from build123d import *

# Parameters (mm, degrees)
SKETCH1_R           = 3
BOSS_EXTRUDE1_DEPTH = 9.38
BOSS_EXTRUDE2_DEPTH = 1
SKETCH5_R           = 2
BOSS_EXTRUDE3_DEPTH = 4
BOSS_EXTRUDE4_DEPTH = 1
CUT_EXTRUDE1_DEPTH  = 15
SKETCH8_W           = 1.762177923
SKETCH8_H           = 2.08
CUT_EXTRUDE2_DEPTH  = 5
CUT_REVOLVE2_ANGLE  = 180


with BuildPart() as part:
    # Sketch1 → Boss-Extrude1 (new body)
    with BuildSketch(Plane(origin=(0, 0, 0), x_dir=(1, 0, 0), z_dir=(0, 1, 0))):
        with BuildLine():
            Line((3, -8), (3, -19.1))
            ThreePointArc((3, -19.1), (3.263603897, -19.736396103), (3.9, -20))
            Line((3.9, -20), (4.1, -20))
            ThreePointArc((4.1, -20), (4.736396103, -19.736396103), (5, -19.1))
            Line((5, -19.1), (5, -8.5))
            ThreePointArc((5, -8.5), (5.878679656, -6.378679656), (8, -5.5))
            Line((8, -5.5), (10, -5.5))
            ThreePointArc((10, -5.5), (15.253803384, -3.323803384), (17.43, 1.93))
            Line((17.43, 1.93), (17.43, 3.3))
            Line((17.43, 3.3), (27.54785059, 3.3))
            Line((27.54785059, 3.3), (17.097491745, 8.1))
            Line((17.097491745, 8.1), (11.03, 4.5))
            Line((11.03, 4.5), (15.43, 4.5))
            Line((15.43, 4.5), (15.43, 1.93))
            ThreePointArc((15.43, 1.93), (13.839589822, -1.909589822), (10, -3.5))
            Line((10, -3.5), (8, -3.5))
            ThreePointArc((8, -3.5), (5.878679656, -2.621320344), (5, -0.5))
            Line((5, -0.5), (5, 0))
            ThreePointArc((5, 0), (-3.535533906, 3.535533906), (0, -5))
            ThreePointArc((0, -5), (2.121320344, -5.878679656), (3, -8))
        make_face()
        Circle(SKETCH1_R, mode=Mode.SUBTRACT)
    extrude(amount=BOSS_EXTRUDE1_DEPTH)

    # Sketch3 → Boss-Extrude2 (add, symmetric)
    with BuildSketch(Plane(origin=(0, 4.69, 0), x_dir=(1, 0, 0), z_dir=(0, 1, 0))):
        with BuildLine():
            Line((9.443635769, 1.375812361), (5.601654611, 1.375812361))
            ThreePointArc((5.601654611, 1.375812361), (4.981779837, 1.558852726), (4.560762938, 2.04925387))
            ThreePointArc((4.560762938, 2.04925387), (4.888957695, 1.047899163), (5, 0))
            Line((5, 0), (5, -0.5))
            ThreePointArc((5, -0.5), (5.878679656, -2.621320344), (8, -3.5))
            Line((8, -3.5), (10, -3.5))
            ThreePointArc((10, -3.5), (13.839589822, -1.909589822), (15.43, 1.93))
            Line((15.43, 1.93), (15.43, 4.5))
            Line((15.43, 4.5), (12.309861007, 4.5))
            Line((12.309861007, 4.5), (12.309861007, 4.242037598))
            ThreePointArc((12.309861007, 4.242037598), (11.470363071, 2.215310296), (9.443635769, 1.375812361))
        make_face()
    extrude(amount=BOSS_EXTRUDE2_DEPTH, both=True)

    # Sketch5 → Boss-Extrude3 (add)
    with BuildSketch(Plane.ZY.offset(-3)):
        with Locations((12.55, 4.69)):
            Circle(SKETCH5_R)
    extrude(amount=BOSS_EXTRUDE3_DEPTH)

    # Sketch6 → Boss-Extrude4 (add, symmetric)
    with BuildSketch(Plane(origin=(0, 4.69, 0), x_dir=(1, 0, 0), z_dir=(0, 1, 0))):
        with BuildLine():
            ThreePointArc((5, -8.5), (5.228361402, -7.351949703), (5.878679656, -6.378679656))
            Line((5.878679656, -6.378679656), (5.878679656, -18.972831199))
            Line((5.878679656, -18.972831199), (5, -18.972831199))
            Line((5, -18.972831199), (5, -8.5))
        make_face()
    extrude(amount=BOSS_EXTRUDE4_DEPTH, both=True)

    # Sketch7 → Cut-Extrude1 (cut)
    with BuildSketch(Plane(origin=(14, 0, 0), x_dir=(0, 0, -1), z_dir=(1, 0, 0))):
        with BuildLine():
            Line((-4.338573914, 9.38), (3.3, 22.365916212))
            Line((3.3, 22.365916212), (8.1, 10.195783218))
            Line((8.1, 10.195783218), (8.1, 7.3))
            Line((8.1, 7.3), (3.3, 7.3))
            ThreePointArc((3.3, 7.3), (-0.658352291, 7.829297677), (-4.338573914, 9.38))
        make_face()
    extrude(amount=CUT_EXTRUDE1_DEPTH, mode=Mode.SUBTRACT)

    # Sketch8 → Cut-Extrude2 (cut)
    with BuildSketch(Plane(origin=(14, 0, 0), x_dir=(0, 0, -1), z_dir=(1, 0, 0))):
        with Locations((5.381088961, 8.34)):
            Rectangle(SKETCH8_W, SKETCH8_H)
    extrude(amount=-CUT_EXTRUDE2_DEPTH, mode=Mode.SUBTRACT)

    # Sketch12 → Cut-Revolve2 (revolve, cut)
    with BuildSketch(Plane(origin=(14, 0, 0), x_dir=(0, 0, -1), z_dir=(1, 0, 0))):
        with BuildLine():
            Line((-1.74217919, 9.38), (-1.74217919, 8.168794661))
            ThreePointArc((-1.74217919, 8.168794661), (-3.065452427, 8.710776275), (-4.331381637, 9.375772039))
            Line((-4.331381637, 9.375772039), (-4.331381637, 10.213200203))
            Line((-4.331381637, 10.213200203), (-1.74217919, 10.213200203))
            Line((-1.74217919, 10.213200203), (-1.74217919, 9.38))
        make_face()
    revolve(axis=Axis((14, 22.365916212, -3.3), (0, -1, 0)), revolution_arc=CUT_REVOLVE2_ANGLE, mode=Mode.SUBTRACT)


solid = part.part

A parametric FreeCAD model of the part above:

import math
import FreeCAD as App
import Part
import Sketcher
Q = App.Units.Quantity

doc = App.newDocument("Part")
body = doc.addObject("PartDesign::Body", "Body")

# Sketch on XZ plane
sketch1 = body.newObject("Sketcher::SketchObject", "Sketch")
sketch1.AttachmentSupport = (doc.getObject("XZ_Plane"), [""])
sketch1.MapMode = "FlatFace"
sketch1.addGeometry([
    Part.LineSegment(App.Vector(3, 8, 0), App.Vector(3, 19.1, 0)),  # 0
    Part.ArcOfCircle(Part.Circle(App.Vector(3.9, 19.1, 0), App.Vector(0, 0, 1), 0.9), math.radians(90), math.radians(180)),  # 1
    Part.LineSegment(App.Vector(3.9, 20, 0), App.Vector(4.1, 20, 0)),  # 2
    Part.ArcOfCircle(Part.Circle(App.Vector(4.1, 19.1, 0), App.Vector(0, 0, 1), 0.9), math.radians(0), math.radians(90)),  # 3
    Part.LineSegment(App.Vector(5, 19.1, 0), App.Vector(5, 8.5, 0)),  # 4
    Part.ArcOfCircle(Part.Circle(App.Vector(8, 8.5, 0), App.Vector(0, 0, 1), 3), math.radians(180), math.radians(270)),  # 5
    Part.LineSegment(App.Vector(8, 5.5, 0), App.Vector(10, 5.5, 0)),  # 6
    Part.ArcOfCircle(Part.Circle(App.Vector(10, -1.93, 0), App.Vector(0, 0, 1), 7.43), math.radians(0), math.radians(90)),  # 7
    Part.LineSegment(App.Vector(17.43, -1.93, 0), App.Vector(17.43, -3.3, 0)),  # 8
    Part.LineSegment(App.Vector(17.43, -3.3, 0), App.Vector(27.55, -3.3, 0)),  # 9
    Part.LineSegment(App.Vector(27.55, -3.3, 0), App.Vector(17.1, -8.1, 0)),  # 10
    Part.LineSegment(App.Vector(17.1, -8.1, 0), App.Vector(11.03, -4.5, 0)),  # 11
    Part.LineSegment(App.Vector(11.03, -4.5, 0), App.Vector(15.43, -4.5, 0)),  # 12
    Part.LineSegment(App.Vector(15.43, -4.5, 0), App.Vector(15.43, -1.93, 0)),  # 13
    Part.ArcOfCircle(Part.Circle(App.Vector(10, -1.93, 0), App.Vector(0, 0, 1), 5.43), math.radians(0), math.radians(90)),  # 14
    Part.LineSegment(App.Vector(10, 3.5, 0), App.Vector(8, 3.5, 0)),  # 15
    Part.ArcOfCircle(Part.Circle(App.Vector(8, 0.5, 0), App.Vector(0, 0, 1), 3), math.radians(90), math.radians(180)),  # 16
    Part.LineSegment(App.Vector(5, 0.5, 0), App.Vector(5, 0, 0)),  # 17
    Part.ArcOfCircle(Part.Circle(App.Vector(0, 0, 0), App.Vector(0, 0, 1), 5), math.radians(90), math.radians(360)),  # 18
    Part.ArcOfCircle(Part.Circle(App.Vector(0, 8, 0), App.Vector(0, 0, 1), 3), math.radians(-90), math.radians(0)),  # 19
    Part.Circle(App.Vector(0, 0, 0), App.Vector(0, 0, 1), 3),  # 20
], False)
sketch1.addConstraint([
    Sketcher.Constraint("Tangent", 0, 2, 1, 2),
    Sketcher.Constraint("Tangent", 1, 1, 2, 1),
    Sketcher.Constraint("Tangent", 2, 2, 3, 2),
    Sketcher.Constraint("Tangent", 3, 1, 4, 1),
    Sketcher.Constraint("Tangent", 4, 2, 5, 1),
    Sketcher.Constraint("Tangent", 5, 2, 6, 1),
    Sketcher.Constraint("Tangent", 6, 2, 7, 2),
    Sketcher.Constraint("Tangent", 7, 1, 8, 1),
    Sketcher.Constraint("Coincident", 8, 2, 9, 1),
    Sketcher.Constraint("Coincident", 9, 2, 10, 1),
    Sketcher.Constraint("Coincident", 10, 2, 11, 1),
    Sketcher.Constraint("Coincident", 11, 2, 12, 1),
    Sketcher.Constraint("Coincident", 12, 2, 13, 1),
    Sketcher.Constraint("Tangent", 13, 2, 14, 1),
    Sketcher.Constraint("Tangent", 14, 2, 15, 1),
    Sketcher.Constraint("Tangent", 15, 2, 16, 1),
    Sketcher.Constraint("Tangent", 16, 2, 17, 1),
    Sketcher.Constraint("Tangent", 17, 2, 18, 2),
    Sketcher.Constraint("Tangent", 18, 1, 19, 1),
    Sketcher.Constraint("Tangent", 19, 2, 0, 1),
    Sketcher.Constraint("Vertical", 0),
    Sketcher.Constraint("Horizontal", 2),
    Sketcher.Constraint("Vertical", 4),
    Sketcher.Constraint("Horizontal", 6),
    Sketcher.Constraint("Vertical", 8),
    Sketcher.Constraint("Horizontal", 9),
    Sketcher.Constraint("Horizontal", 12),
    Sketcher.Constraint("Vertical", 13),
    Sketcher.Constraint("Horizontal", 15),
    Sketcher.Constraint("Vertical", 17),
    Sketcher.Constraint("Coincident", 18, 3, -1, 1),
    Sketcher.Constraint("Coincident", 20, 3, -1, 1),
    Sketcher.Constraint("Coincident", 14, 3, 7, 3),
    Sketcher.Constraint("Equal", 1, 3),
    Sketcher.Constraint("Equal", 5, 16),
    Sketcher.Constraint("Equal", 16, 19),
    Sketcher.Constraint("Equal", 19, 20),
    Sketcher.Constraint("PointOnObject", 19, 3, -2),
    Sketcher.Constraint("Vertical", 5, 3, 16, 3),
    Sketcher.Constraint("Diameter", 20, Q("6 mm")),
    Sketcher.Constraint("Radius", 18, Q("5 mm")),
    Sketcher.Constraint("Radius", 1, Q("0.9 mm")),
    Sketcher.Constraint("DistanceX", 6, 1, 6, 2, Q("2 mm")),
    Sketcher.Constraint("Radius", 7, Q("7.43 mm")),
    Sketcher.Constraint("Radius", 14, Q("5.43 mm")),
    Sketcher.Constraint("DistanceX", 12, 1, 12, 2, Q("4.4 mm")),
    Sketcher.Constraint("DistanceY", 0, 1, 0, 2, Q("11.1 mm")),
    Sketcher.Constraint("DistanceY", 4, 2, 4, 1, Q("10.6 mm")),
    Sketcher.Constraint("DistanceY", 11, 2, 16, 3, Q("5 mm")),
    Sketcher.Constraint("Distance", 10, Q("11.5 mm")),
    Sketcher.Constraint("DistanceY", 8, 2, 8, 1, Q("1.37 mm")),
    Sketcher.Constraint("DistanceY", 10, 2, -1, 1, Q("8.1 mm")),
    Sketcher.Constraint("Distance", 11, Q("7.055101 mm")),
])
pad1 = body.newObject("PartDesign::Pad", "Pad")
pad1.Profile = sketch1
pad1.Length = 9.38
pad1.Reversed = True

# Sketch on XZ plane
sketch2 = body.newObject("Sketcher::SketchObject", "Sketch001")
sketch2.AttachmentSupport = (doc.getObject("XZ_Plane"), [""])
sketch2.MapMode = "FlatFace"
sketch2.AttachmentOffset = App.Placement(App.Vector(0, 0, -4.69), App.Rotation())
sketch2.addGeometry([
    Part.LineSegment(App.Vector(9.44, -1.38, 0), App.Vector(5.6, -1.38, 0)),  # 0
    Part.ArcOfCircle(Part.Circle(App.Vector(5.6, -2.52, 0), App.Vector(0, 0, 1), 1.14), math.radians(90), math.radians(156)),  # 1
    Part.ArcOfCircle(Part.Circle(App.Vector(0, 0, 0), App.Vector(0, 0, 1), 5), math.radians(-24), math.radians(0)),  # 2
    Part.LineSegment(App.Vector(5, 0, 0), App.Vector(5, 0.5, 0)),  # 3
    Part.ArcOfCircle(Part.Circle(App.Vector(8, 0.5, 0), App.Vector(0, 0, 1), 3), math.radians(90), math.radians(180)),  # 4
    Part.LineSegment(App.Vector(8, 3.5, 0), App.Vector(10, 3.5, 0)),  # 5
    Part.ArcOfCircle(Part.Circle(App.Vector(10, -1.93, 0), App.Vector(0, 0, 1), 5.43), math.radians(0), math.radians(90)),  # 6
    Part.LineSegment(App.Vector(15.43, -1.93, 0), App.Vector(15.43, -4.5, 0)),  # 7
    Part.LineSegment(App.Vector(15.43, -4.5, 0), App.Vector(12.31, -4.5, 0)),  # 8
    Part.LineSegment(App.Vector(12.31, -4.5, 0), App.Vector(12.31, -4.24, 0)),  # 9
    Part.ArcOfCircle(Part.Circle(App.Vector(9.44, -4.24, 0), App.Vector(0, 0, 1), 2.87), math.radians(0), math.radians(90)),  # 10
], False)
sketch2.addConstraint([
    Sketcher.Constraint("Tangent", 0, 2, 1, 1),
    Sketcher.Constraint("Tangent", 1, 2, 2, 1),
    Sketcher.Constraint("Tangent", 2, 2, 3, 1),
    Sketcher.Constraint("Tangent", 3, 2, 4, 2),
    Sketcher.Constraint("Tangent", 4, 1, 5, 1),
    Sketcher.Constraint("Tangent", 5, 2, 6, 2),
    Sketcher.Constraint("Tangent", 6, 1, 7, 1),
    Sketcher.Constraint("Coincident", 7, 2, 8, 1),
    Sketcher.Constraint("Coincident", 8, 2, 9, 1),
    Sketcher.Constraint("Tangent", 9, 2, 10, 1),
    Sketcher.Constraint("Tangent", 10, 2, 0, 1),
    Sketcher.Constraint("Horizontal", 0),
    Sketcher.Constraint("Vertical", 3),
    Sketcher.Constraint("Horizontal", 5),
    Sketcher.Constraint("Vertical", 7),
    Sketcher.Constraint("Horizontal", 8),
    Sketcher.Constraint("Vertical", 9),
    Sketcher.Constraint("Coincident", 2, 3, -1, 1),
    Sketcher.Constraint("Radius", 2, Q("5 mm")),
    Sketcher.Constraint("Radius", 4, Q("3 mm")),
    Sketcher.Constraint("DistanceX", 5, 1, 5, 2, Q("2 mm")),
    Sketcher.Constraint("Radius", 6, Q("5.43 mm")),
    Sketcher.Constraint("DistanceY", 3, 1, 3, 2, Q("0.5 mm")),
    Sketcher.Constraint("DistanceY", 7, 2, 4, 3, Q("5 mm")),
    Sketcher.Constraint("Radius", 1, Q("1.141138 mm")),
    Sketcher.Constraint("Radius", 10, Q("2.866225 mm")),
    Sketcher.Constraint("DistanceX", 0, 2, 0, 1, Q("3.841981 mm")),
    Sketcher.Constraint("DistanceX", 8, 2, 8, 1, Q("3.120139 mm")),
])
pad2 = body.newObject("PartDesign::Pad", "Pad001")
pad2.Profile = sketch2
pad2.Length = 2
pad2.Midplane = True

# Sketch on YZ plane
sketch3 = body.newObject("Sketcher::SketchObject", "Sketch002")
sketch3.AttachmentSupport = (doc.getObject("YZ_Plane"), [""])
sketch3.MapMode = "FlatFace"
sketch3.AttachmentOffset = App.Placement(App.Vector(0, 0, 3), App.Rotation())
sketch3.addGeometry(Part.Circle(App.Vector(4.7, 12.6, 0), App.Vector(0, 0, 1), 2), False)
sketch3.addConstraint([
    Sketcher.Constraint("Diameter", 0, Q("4 mm")),
    Sketcher.Constraint("DistanceX", -1, 1, 0, 3, Q("4.69 mm")),
    Sketcher.Constraint("DistanceY", -1, 1, 0, 3, Q("12.55 mm")),
])
pad3 = body.newObject("PartDesign::Pad", "Pad002")
pad3.Profile = sketch3
pad3.Length = 4
pad3.Reversed = True

# Sketch on XZ plane
sketch4 = body.newObject("Sketcher::SketchObject", "Sketch003")
sketch4.AttachmentSupport = (doc.getObject("XZ_Plane"), [""])
sketch4.MapMode = "FlatFace"
sketch4.AttachmentOffset = App.Placement(App.Vector(0, 0, -4.69), App.Rotation())
sketch4.addGeometry([
    Part.ArcOfCircle(Part.Circle(App.Vector(8, 8.5, 0), App.Vector(0, 0, 1), 3), math.radians(180), math.radians(225)),
    Part.LineSegment(App.Vector(5, 8.5, 0), App.Vector(5, 19, 0)),
    Part.LineSegment(App.Vector(5, 19, 0), App.Vector(5.9, 19, 0)),
    Part.LineSegment(App.Vector(5.9, 19, 0), App.Vector(5.9, 6.4, 0)),
], False)
sketch4.addConstraint([
    Sketcher.Constraint("Tangent", 0, 1, 1, 1),
    Sketcher.Constraint("Coincident", 1, 2, 2, 1),
    Sketcher.Constraint("Coincident", 2, 2, 3, 1),
    Sketcher.Constraint("Coincident", 3, 2, 0, 2),
    Sketcher.Constraint("Vertical", 1),
    Sketcher.Constraint("Horizontal", 2),
    Sketcher.Constraint("Vertical", 3),
    Sketcher.Constraint("Radius", 0, Q("3 mm")),
    Sketcher.Constraint("DistanceX", -1, 1, 0, 3, Q("8 mm")),
    Sketcher.Constraint("DistanceY", -1, 1, 0, 3, Q("8.5 mm")),
    Sketcher.Constraint("DistanceX", 2, 1, 2, 2, Q("0.87868 mm")),
    Sketcher.Constraint("DistanceY", 1, 1, 1, 2, Q("10.472831 mm")),
])
pad4 = body.newObject("PartDesign::Pad", "Pad003")
pad4.Profile = sketch4
pad4.Length = 2
pad4.Midplane = True

# Sketch on YZ plane
sketch5 = body.newObject("Sketcher::SketchObject", "Sketch004")
sketch5.AttachmentSupport = (doc.getObject("YZ_Plane"), [""])
sketch5.MapMode = "FlatFace"
sketch5.AttachmentOffset = App.Placement(App.Vector(0, 0, 14), App.Rotation())
sketch5.addGeometry([
    Part.LineSegment(App.Vector(22.4, -3.3, 0), App.Vector(9.4, 4.3, 0)),  # 0
    Part.ArcOfCircle(Part.Circle(App.Vector(22.4, -3.3, 0), App.Vector(0, 0, 1), 15.1), math.radians(150), math.radians(180)),  # 1
    Part.LineSegment(App.Vector(7.3, -3.3, 0), App.Vector(7.3, -8.1, 0)),  # 2
    Part.LineSegment(App.Vector(7.3, -8.1, 0), App.Vector(10.2, -8.1, 0)),  # 3
    Part.LineSegment(App.Vector(10.2, -8.1, 0), App.Vector(22.4, -3.3, 0)),  # 4
], False)
sketch5.addConstraint([
    Sketcher.Constraint("Coincident", 0, 2, 1, 1),
    Sketcher.Constraint("Tangent", 1, 2, 2, 1),
    Sketcher.Constraint("Coincident", 2, 2, 3, 1),
    Sketcher.Constraint("Coincident", 3, 2, 4, 1),
    Sketcher.Constraint("Coincident", 4, 2, 0, 1),
    Sketcher.Constraint("Vertical", 2),
    Sketcher.Constraint("Horizontal", 3),
    Sketcher.Constraint("Coincident", 4, 2, 1, 3),
    Sketcher.Constraint("DistanceY", 2, 2, 2, 1, Q("4.8 mm")),
    Sketcher.Constraint("DistanceY", 1, 3, -1, 1, Q("3.3 mm")),
    Sketcher.Constraint("DistanceX", -1, 1, 1, 2, Q("7.3 mm")),
    Sketcher.Constraint("DistanceX", -1, 1, 0, 2, Q("9.38 mm")),
    Sketcher.Constraint("Radius", 1, Q("15.065916 mm")),
    Sketcher.Constraint("DistanceX", 3, 1, 3, 2, Q("2.895783 mm")),
])
pocket1 = body.newObject("PartDesign::Pocket", "Pocket")
pocket1.Profile = sketch5
pocket1.Length = 15
pocket1.Reversed = True

# Sketch on YZ plane
sketch6 = body.newObject("Sketcher::SketchObject", "Sketch005")
sketch6.AttachmentSupport = (doc.getObject("YZ_Plane"), [""])
sketch6.MapMode = "FlatFace"
sketch6.AttachmentOffset = App.Placement(App.Vector(0, 0, 14), App.Rotation())
sketch6.addGeometry([
    Part.LineSegment(App.Vector(9.4, -4.5, 0), App.Vector(7.3, -4.5, 0)),
    Part.LineSegment(App.Vector(7.3, -4.5, 0), App.Vector(7.3, -6.3, 0)),
    Part.LineSegment(App.Vector(7.3, -6.3, 0), App.Vector(9.4, -6.3, 0)),
    Part.LineSegment(App.Vector(9.4, -6.3, 0), App.Vector(9.4, -4.5, 0)),
], False)
sketch6.addConstraint([
    Sketcher.Constraint("Coincident", 0, 2, 1, 1),
    Sketcher.Constraint("Coincident", 1, 2, 2, 1),
    Sketcher.Constraint("Coincident", 2, 2, 3, 1),
    Sketcher.Constraint("Coincident", 3, 2, 0, 1),
    Sketcher.Constraint("Horizontal", 0),
    Sketcher.Constraint("Vertical", 1),
    Sketcher.Constraint("Horizontal", 2),
    Sketcher.Constraint("Vertical", 3),
    Sketcher.Constraint("DistanceX", 0, 2, 0, 1, Q("2.08 mm")),
    Sketcher.Constraint("DistanceX", -1, 1, 0, 2, Q("7.3 mm")),
    Sketcher.Constraint("DistanceY", 0, 2, -1, 1, Q("4.5 mm")),
    Sketcher.Constraint("DistanceY", 1, 2, 1, 1, Q("1.762178 mm")),
])
pocket2 = body.newObject("PartDesign::Pocket", "Pocket001")
pocket2.Profile = sketch6
pocket2.Length = 5

# Sketch on YZ plane
sketch7 = body.newObject("Sketcher::SketchObject", "Sketch006")
sketch7.AttachmentSupport = (doc.getObject("YZ_Plane"), [""])
sketch7.MapMode = "FlatFace"
sketch7.AttachmentOffset = App.Placement(App.Vector(0, 0, 14), App.Rotation())
sketch7.addGeometry([
    Part.ArcOfCircle(Part.Circle(App.Vector(22.4, -3.3, 0), App.Vector(0, 0, 1), 15.1), math.radians(149.57), math.radians(160.45)),
    Part.LineSegment(App.Vector(8.2, 1.7, 0), App.Vector(10.2, 1.7, 0)),
    Part.LineSegment(App.Vector(10.2, 1.7, 0), App.Vector(10.2, 4.3, 0)),
    Part.LineSegment(App.Vector(10.2, 4.3, 0), App.Vector(9.4, 4.3, 0)),
], False)
sketch7.addGeometry(Part.LineSegment(App.Vector(22.4, -3.3, 0), App.Vector(8.2, -3.3, 0)), True)  # axis
sketch7.addConstraint([
    Sketcher.Constraint("Coincident", 0, 2, 1, 1),
    Sketcher.Constraint("Coincident", 1, 2, 2, 1),
    Sketcher.Constraint("Coincident", 2, 2, 3, 1),
    Sketcher.Constraint("Coincident", 3, 2, 0, 1),
    Sketcher.Constraint("Horizontal", 1),
    Sketcher.Constraint("Vertical", 2),
    Sketcher.Constraint("Horizontal", 3),
    Sketcher.Constraint("Horizontal", 4),
    Sketcher.Constraint("Coincident", 4, 1, 0, 3),
    Sketcher.Constraint("Vertical", 0, 2, 4, 2),
    Sketcher.Constraint("DistanceY", 0, 3, -1, 1, Q("3.3 mm")),
    Sketcher.Constraint("Radius", 0, Q("15.065916 mm")),
    Sketcher.Constraint("DistanceX", 3, 2, 3, 1, Q("0.837428 mm")),
    Sketcher.Constraint("DistanceX", 4, 2, 4, 1, Q("14.197122 mm")),
    Sketcher.Constraint("DistanceX", -1, 1, 1, 2, Q("10.2132 mm")),
    Sketcher.Constraint("DistanceX", 1, 1, 1, 2, Q("2.044406 mm")),
])
groove = body.newObject("PartDesign::Groove", "Groove")
groove.Profile = sketch7
groove.ReferenceAxis = (sketch7, ["Axis0"])
groove.Angle = 180

doc.recompute()
